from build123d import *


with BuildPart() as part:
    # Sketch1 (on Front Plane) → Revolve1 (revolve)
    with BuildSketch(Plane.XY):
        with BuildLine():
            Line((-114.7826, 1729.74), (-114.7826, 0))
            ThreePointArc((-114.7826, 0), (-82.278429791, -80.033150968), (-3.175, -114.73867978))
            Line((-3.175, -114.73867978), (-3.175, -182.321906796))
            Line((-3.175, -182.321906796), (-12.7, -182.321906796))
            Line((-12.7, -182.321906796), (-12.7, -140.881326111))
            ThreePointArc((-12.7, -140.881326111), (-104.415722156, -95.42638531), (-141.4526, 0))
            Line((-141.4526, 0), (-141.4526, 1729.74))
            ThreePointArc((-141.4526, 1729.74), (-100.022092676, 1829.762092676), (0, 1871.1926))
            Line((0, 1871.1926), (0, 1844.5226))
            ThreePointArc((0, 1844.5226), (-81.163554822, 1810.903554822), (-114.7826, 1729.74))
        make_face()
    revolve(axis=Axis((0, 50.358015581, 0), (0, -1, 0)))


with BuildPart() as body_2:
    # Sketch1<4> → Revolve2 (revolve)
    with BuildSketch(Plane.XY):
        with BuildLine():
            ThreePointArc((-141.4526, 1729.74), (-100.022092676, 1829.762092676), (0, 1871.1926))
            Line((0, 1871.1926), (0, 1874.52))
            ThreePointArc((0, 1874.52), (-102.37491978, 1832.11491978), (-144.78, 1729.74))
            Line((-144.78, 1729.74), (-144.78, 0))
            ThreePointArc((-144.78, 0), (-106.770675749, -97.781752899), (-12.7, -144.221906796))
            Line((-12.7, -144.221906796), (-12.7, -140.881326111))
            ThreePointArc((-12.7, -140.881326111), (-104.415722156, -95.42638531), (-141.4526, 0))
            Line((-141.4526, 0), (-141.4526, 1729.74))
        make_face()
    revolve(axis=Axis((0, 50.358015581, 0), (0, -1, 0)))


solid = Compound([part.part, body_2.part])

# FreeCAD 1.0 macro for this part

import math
import FreeCAD as App
import Part
import Sketcher

V = App.Vector
Q = App.Units.Quantity

doc = App.newDocument("Part")
params = doc.addObject("Spreadsheet::Sheet", "Params")
for row, (alias, value) in enumerate([
    ("sketch1_height", "68.1 in"),
    ("sketch1_radius", "4.519 in"),
    ("sketch1_radius2", "5.569 in"),
    ("sketch1_width", "0.375 in"),
    ("revolution_angle", "360 deg"),
    ("sketch2_radius", "5.7 in"),
    ("sketch2_height", "68.1 in"),
    ("sketch2_radius2", "5.569 in"),
    ("revolution2_angle", "360 deg"),
], start=1):
    params.set(f"A{row}", alias)
    params.set(f"B{row}", "=" + value)
    params.setAlias(f"B{row}", alias)

body = doc.addObject("PartDesign::Body", "Body")

# Sketch on XY plane
sketch1 = body.newObject("Sketcher::SketchObject", "Sketch")
sketch1.AttachmentSupport = (doc.getObject("XY_Plane"), [""])
sketch1.MapMode = "FlatFace"
sketch1.addGeometry([
    Part.LineSegment(V(-115, 0, 0), V(-115, 1730, 0)),  # 0
    Part.ArcOfCircle(Part.Circle(V(0, 1730, 0), V(0, 0, 1), 115), math.radians(90), math.radians(180)),  # 1
    Part.LineSegment(V(0, 1845, 0), V(0, 1871, 0)),  # 2
    Part.ArcOfCircle(Part.Circle(V(0, 1730, 0), V(0, 0, 1), 141), math.radians(90), math.radians(180)),  # 3
    Part.LineSegment(V(-141, 1730, 0), V(-141, 0, 0)),  # 4
    Part.ArcOfCircle(Part.Circle(V(0, 0, 0), V(0, 0, 1), 141), math.radians(-180), math.radians(-95)),  # 5
    Part.LineSegment(V(-13, -141, 0), V(-13, -182, 0)),  # 6
    Part.LineSegment(V(-13, -182, 0), V(-3, -182, 0)),  # 7
    Part.LineSegment(V(-3, -182, 0), V(-3, -115, 0)),  # 8
    Part.ArcOfCircle(Part.Circle(V(0, 0, 0), V(0, 0, 1), 115), math.radians(180), math.radians(268)),  # 9
], False)
sketch1.addConstraint([
    Sketcher.Constraint("Tangent", 0, 2, 1, 2),
    Sketcher.Constraint("Coincident", 1, 1, 2, 1),
    Sketcher.Constraint("Coincident", 2, 2, 3, 1),
    Sketcher.Constraint("Tangent", 3, 2, 4, 1),
    Sketcher.Constraint("Tangent", 4, 2, 5, 1),
    Sketcher.Constraint("Coincident", 5, 2, 6, 1),
    Sketcher.Constraint("Coincident", 6, 2, 7, 1),
    Sketcher.Constraint("Coincident", 7, 2, 8, 1),
    Sketcher.Constraint("Coincident", 8, 2, 9, 2),
    Sketcher.Constraint("Tangent", 9, 1, 0, 1),
    Sketcher.Constraint("Vertical", 0),
    Sketcher.Constraint("Vertical", 2),
    Sketcher.Constraint("Vertical", 4),
    Sketcher.Constraint("Vertical", 6),
    Sketcher.Constraint("Horizontal", 7),
    Sketcher.Constraint("Vertical", 8),
    Sketcher.Constraint("Coincident", 5, 3, -1, 1),
    Sketcher.Constraint("Coincident", 9, 3, -1, 1),
    Sketcher.Constraint("Coincident", 3, 3, 1, 3),
    Sketcher.Constraint("Equal", 3, 5),
    Sketcher.Constraint("PointOnObject", 1, 1, -2),
    Sketcher.Constraint("DistanceY", 0, 1, 0, 2, Q("68.1 in")),
    Sketcher.Constraint("Radius", 1, Q("4.519 in")),
    Sketcher.Constraint("Radius", 3, Q("5.569 in")),
    Sketcher.Constraint("DistanceX", 5, 2, -1, 1, Q("0.5 in")),
    Sketcher.Constraint("DistanceX", 7, 1, 7, 2, Q("0.375 in")),
    Sketcher.Constraint("DistanceY", 6, 2, 6, 1, 41.440581),
])
sketch1.setExpression("Constraints[21]", "Params.sketch1_height")
sketch1.setExpression("Constraints[22]", "Params.sketch1_radius")
sketch1.setExpression("Constraints[23]", "Params.sketch1_radius2")
sketch1.setExpression("Constraints[25]", "Params.sketch1_width")
revolution = body.newObject("PartDesign::Revolution", "Revolution")
revolution.Profile = sketch1
revolution.ReferenceAxis = (sketch1, ["V_Axis"])
revolution.setExpression("Angle", "Params.revolution_angle")
body2 = doc.addObject("PartDesign::Body", "Body001")

# Sketch on XY plane
sketch2 = body2.newObject("Sketcher::SketchObject", "Sketch001")
sketch2.AttachmentSupport = (doc.getObject("XY_Plane001"), [""])
sketch2.MapMode = "FlatFace"
sketch2.addGeometry([
    Part.ArcOfCircle(Part.Circle(V(0, 1729.7, 0), V(0, 0, 1), 141.5), math.radians(90), math.radians(180)),  # 0
    Part.LineSegment(V(0, 1871.2, 0), V(0, 1874.5, 0)),  # 1
    Part.ArcOfCircle(Part.Circle(V(0, 1729.7, 0), V(0, 0, 1), 144.8), math.radians(90), math.radians(180)),  # 2
    Part.LineSegment(V(-144.8, 1729.7, 0), V(-144.8, 0, 0)),  # 3
    Part.ArcOfCircle(Part.Circle(V(0, 0, 0), V(0, 0, 1), 144.8), math.radians(-180), math.radians(-95)),  # 4
    Part.LineSegment(V(-12.7, -144.2, 0), V(-12.7, -140.9, 0)),  # 5
    Part.ArcOfCircle(Part.Circle(V(0, 0, 0), V(0, 0, 1), 141.5), math.radians(-180), math.radians(-95)),  # 6
    Part.LineSegment(V(-141.5, 0, 0), V(-141.5, 1729.7, 0)),  # 7
], False)
sketch2.addConstraint([
    Sketcher.Constraint("Coincident", 0, 1, 1, 1),
    Sketcher.Constraint("Coincident", 1, 2, 2, 1),
    Sketcher.Constraint("Tangent", 2, 2, 3, 1),
    Sketcher.Constraint("Tangent", 3, 2, 4, 1),
    Sketcher.Constraint("Coincident", 4, 2, 5, 1),
    Sketcher.Constraint("Coincident", 5, 2, 6, 2),
    Sketcher.Constraint("Tangent", 6, 1, 7, 1),
    Sketcher.Constraint("Tangent", 7, 2, 0, 2),
    Sketcher.Constraint("Vertical", 1),
    Sketcher.Constraint("Vertical", 3),
    Sketcher.Constraint("Vertical", 5),
    Sketcher.Constraint("Vertical", 7),
    Sketcher.Constraint("Coincident", 4, 3, -1, 1),
    Sketcher.Constraint("Coincident", 6, 3, -1, 1),
    Sketcher.Constraint("Coincident", 2, 3, 0, 3),
    Sketcher.Constraint("Equal", 2, 4),
    Sketcher.Constraint("PointOnObject", 0, 1, -2),
    Sketcher.Constraint("Radius", 2, Q("5.7 in")),
    Sketcher.Constraint("DistanceY", 3, 2, 3, 1, Q("68.1 in")),
    Sketcher.Constraint("Radius", 0, Q("5.569 in")),
    Sketcher.Constraint("DistanceX", 4, 2, -1, 1, Q("0.5 in")),
])
sketch2.setExpression("Constraints[17]", "Params.sketch2_radius")
sketch2.setExpression("Constraints[18]", "Params.sketch2_height")
sketch2.setExpression("Constraints[19]", "Params.sketch2_radius2")
revolution2 = body2.newObject("PartDesign::Revolution", "Revolution001")
revolution2.Profile = sketch2
revolution2.ReferenceAxis = (sketch2, ["V_Axis"])
revolution2.setExpression("Angle", "Params.revolution2_angle")

doc.recompute()
